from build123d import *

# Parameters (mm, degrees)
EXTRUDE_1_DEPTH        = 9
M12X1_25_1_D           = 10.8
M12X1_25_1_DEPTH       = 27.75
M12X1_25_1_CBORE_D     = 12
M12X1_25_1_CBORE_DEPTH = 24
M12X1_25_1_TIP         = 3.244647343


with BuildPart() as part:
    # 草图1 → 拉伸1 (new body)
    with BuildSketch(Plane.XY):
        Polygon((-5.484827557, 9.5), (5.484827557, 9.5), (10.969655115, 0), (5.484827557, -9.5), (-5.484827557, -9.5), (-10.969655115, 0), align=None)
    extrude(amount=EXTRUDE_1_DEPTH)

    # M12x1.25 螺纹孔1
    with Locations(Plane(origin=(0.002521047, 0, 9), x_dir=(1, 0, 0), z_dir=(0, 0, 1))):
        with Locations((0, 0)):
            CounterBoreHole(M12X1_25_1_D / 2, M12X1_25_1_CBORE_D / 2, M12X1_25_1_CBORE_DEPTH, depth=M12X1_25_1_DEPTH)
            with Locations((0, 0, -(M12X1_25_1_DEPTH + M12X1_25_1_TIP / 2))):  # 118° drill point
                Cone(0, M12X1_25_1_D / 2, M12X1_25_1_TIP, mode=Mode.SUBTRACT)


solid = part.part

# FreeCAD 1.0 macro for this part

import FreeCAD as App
import Part
import Sketcher

V = App.Vector
Q = App.Units.Quantity

doc = App.newDocument("Part")
body = doc.addObject("PartDesign::Body", "Body")

# Sketch on XY plane
sketch1 = doc.addObject("Sketcher::SketchObject", "Sketch")
body.addObject(sketch1)
sketch1.AttachmentSupport = (doc.XY_Plane, [""])
sketch1.MapMode = "FlatFace"
sketch1.addGeometry([
    Part.LineSegment(V(5.484828, 9.5, 0), V(-5.484828, 9.5, 0)),  # 0
    Part.LineSegment(V(-5.484828, 9.5, 0), V(-10.969655, 0, 0)),  # 1
    Part.LineSegment(V(-10.969655, 0, 0), V(-5.484828, -9.5, 0)),  # 2
    Part.LineSegment(V(-5.484828, -9.5, 0), V(5.484828, -9.5, 0)),  # 3
    Part.LineSegment(V(5.484828, -9.5, 0), V(10.969655, 0, 0)),  # 4
    Part.LineSegment(V(10.969655, 0, 0), V(5.484828, 9.5, 0)),  # 5
], False)
sketch1.addConstraint([
    Sketcher.Constraint("Coincident", 0, 2, 1, 1),
    Sketcher.Constraint("Coincident", 1, 2, 2, 1),
    Sketcher.Constraint("Coincident", 2, 2, 3, 1),
    Sketcher.Constraint("Coincident", 3, 2, 4, 1),
    Sketcher.Constraint("Coincident", 4, 2, 5, 1),
    Sketcher.Constraint("Coincident", 5, 2, 0, 1),
    Sketcher.Constraint("Horizontal", 0),
    Sketcher.Constraint("Horizontal", 3),
    Sketcher.Constraint("Symmetric", 0, 2, 3, 2, -1, 1),
    Sketcher.Constraint("Symmetric", 1, 2, 4, 2, -1, 1),
    Sketcher.Constraint("PointOnObject", 1, 2, -1),
    Sketcher.Constraint("Parallel", 2, 5),
    Sketcher.Constraint("Vertical", 0, 2, 2, 2),
    Sketcher.Constraint("Angle", 1, Q("-120 deg")),
    Sketcher.Constraint("DistanceY", 2, 2, 0, 2, 19.0),
    Sketcher.Constraint("DistanceX", 0, 2, 0, 1, 10.969655),
])
pad1 = doc.addObject("PartDesign::Pad", "Pad")
body.addObject(pad1)
pad1.Profile = sketch1
pad1.Length = 9

# Sketch on XY plane
sketch2 = doc.addObject("Sketcher::SketchObject", "Sketch001")
body.addObject(sketch2)
sketch2.AttachmentSupport = (doc.XY_Plane, [""])
sketch2.MapMode = "FlatFace"
sketch2.AttachmentOffset = App.Placement(V(0, 0, 9), App.Rotation())
sketch2.addGeometry(Part.Circle(V(0.002521, 0, 0), V(0, 0, 1), 5.4), False)
sketch2.addConstraint([
    Sketcher.Constraint("PointOnObject", 0, 3, -1),
    Sketcher.Constraint("Diameter", 0, 10.8),
    Sketcher.Constraint("DistanceX", -1, 1, 0, 3, 0.002521),
])
doc.recompute()
hole = doc.addObject("PartDesign::Hole", "Hole")
body.addObject(hole)
hole.Profile = sketch2
hole.ThreadType = "None"
hole.Diameter = 10.8
hole.DepthType = "Dimension"
hole.Depth = 27.75
hole.DrillPoint = "Angled"
hole.DrillPointAngle = 118
hole.HoleCutType = "Counterbore"
hole.HoleCutDiameter = 12
hole.HoleCutDepth = 24

doc.recompute()
